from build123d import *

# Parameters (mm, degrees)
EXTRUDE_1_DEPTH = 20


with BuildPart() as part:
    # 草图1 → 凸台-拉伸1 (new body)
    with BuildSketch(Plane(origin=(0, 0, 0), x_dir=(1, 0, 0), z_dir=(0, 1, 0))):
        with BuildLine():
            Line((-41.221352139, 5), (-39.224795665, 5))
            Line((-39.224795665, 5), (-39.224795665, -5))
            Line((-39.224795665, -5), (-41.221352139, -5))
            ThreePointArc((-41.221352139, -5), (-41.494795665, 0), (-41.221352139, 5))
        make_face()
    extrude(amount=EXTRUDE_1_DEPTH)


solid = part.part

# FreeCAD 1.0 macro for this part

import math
import FreeCAD as App
import Part
import Sketcher
Q = App.Units.Quantity

doc = App.newDocument("Part")
body = doc.addObject("PartDesign::Body", "Body")

sketch1 = body.newObject("Sketcher::SketchObject", "Sketch")
sketch1.AttachmentSupport = (doc.getObject("XZ_Plane"), [""])
sketch1.MapMode = "FlatFace"
sketch1.addGeometry(Part.LineSegment(App.Vector(-39.2, -5, 0), App.Vector(-41.2, -5, 0)), False)
sketch1.addGeometry(Part.ArcOfCircle(Part.Circle(App.Vector(4.4, 0, 0), App.Vector(0, 0, 1), 45.9), math.radians(173.74), math.radians(186.26)), False)
sketch1.addGeometry(Part.LineSegment(App.Vector(-41.2, 5, 0), App.Vector(-39.2, 5, 0)), False)
sketch1.addGeometry(Part.LineSegment(App.Vector(-39.2, 5, 0), App.Vector(-39.2, -5, 0)), False)
sketch1.addConstraint(Sketcher.Constraint("Coincident", 0, 2, 1, 2))
sketch1.addConstraint(Sketcher.Constraint("Coincident", 1, 1, 2, 1))
sketch1.addConstraint(Sketcher.Constraint("Coincident", 2, 2, 3, 1))
sketch1.addConstraint(Sketcher.Constraint("Coincident", 3, 2, 0, 1))
sketch1.addConstraint(Sketcher.Constraint("Horizontal", 0))
sketch1.addConstraint(Sketcher.Constraint("Horizontal", 2))
sketch1.addConstraint(Sketcher.Constraint("Vertical", 3))
sketch1.addConstraint(Sketcher.Constraint("Symmetric", 0, 2, 1, 1, -1))
sketch1.addConstraint(Sketcher.Constraint("DistanceY", 3, 2, 3, 1, Q("10 mm")))
sketch1.addConstraint(Sketcher.Constraint("Radius", 1, Q("45.85 mm")))
sketch1.addConstraint(Sketcher.Constraint("DistanceX", 2, 2, 1, 3, Q("43.58 mm")))
sketch1.addConstraint(Sketcher.Constraint("DistanceX", -1, 1, 1, 3, Q("4.355204 mm")))
pad1 = body.newObject("PartDesign::Pad", "Pad")
pad1.Profile = sketch1
pad1.Length = 20
pad1.Reversed = True

doc.recompute()
